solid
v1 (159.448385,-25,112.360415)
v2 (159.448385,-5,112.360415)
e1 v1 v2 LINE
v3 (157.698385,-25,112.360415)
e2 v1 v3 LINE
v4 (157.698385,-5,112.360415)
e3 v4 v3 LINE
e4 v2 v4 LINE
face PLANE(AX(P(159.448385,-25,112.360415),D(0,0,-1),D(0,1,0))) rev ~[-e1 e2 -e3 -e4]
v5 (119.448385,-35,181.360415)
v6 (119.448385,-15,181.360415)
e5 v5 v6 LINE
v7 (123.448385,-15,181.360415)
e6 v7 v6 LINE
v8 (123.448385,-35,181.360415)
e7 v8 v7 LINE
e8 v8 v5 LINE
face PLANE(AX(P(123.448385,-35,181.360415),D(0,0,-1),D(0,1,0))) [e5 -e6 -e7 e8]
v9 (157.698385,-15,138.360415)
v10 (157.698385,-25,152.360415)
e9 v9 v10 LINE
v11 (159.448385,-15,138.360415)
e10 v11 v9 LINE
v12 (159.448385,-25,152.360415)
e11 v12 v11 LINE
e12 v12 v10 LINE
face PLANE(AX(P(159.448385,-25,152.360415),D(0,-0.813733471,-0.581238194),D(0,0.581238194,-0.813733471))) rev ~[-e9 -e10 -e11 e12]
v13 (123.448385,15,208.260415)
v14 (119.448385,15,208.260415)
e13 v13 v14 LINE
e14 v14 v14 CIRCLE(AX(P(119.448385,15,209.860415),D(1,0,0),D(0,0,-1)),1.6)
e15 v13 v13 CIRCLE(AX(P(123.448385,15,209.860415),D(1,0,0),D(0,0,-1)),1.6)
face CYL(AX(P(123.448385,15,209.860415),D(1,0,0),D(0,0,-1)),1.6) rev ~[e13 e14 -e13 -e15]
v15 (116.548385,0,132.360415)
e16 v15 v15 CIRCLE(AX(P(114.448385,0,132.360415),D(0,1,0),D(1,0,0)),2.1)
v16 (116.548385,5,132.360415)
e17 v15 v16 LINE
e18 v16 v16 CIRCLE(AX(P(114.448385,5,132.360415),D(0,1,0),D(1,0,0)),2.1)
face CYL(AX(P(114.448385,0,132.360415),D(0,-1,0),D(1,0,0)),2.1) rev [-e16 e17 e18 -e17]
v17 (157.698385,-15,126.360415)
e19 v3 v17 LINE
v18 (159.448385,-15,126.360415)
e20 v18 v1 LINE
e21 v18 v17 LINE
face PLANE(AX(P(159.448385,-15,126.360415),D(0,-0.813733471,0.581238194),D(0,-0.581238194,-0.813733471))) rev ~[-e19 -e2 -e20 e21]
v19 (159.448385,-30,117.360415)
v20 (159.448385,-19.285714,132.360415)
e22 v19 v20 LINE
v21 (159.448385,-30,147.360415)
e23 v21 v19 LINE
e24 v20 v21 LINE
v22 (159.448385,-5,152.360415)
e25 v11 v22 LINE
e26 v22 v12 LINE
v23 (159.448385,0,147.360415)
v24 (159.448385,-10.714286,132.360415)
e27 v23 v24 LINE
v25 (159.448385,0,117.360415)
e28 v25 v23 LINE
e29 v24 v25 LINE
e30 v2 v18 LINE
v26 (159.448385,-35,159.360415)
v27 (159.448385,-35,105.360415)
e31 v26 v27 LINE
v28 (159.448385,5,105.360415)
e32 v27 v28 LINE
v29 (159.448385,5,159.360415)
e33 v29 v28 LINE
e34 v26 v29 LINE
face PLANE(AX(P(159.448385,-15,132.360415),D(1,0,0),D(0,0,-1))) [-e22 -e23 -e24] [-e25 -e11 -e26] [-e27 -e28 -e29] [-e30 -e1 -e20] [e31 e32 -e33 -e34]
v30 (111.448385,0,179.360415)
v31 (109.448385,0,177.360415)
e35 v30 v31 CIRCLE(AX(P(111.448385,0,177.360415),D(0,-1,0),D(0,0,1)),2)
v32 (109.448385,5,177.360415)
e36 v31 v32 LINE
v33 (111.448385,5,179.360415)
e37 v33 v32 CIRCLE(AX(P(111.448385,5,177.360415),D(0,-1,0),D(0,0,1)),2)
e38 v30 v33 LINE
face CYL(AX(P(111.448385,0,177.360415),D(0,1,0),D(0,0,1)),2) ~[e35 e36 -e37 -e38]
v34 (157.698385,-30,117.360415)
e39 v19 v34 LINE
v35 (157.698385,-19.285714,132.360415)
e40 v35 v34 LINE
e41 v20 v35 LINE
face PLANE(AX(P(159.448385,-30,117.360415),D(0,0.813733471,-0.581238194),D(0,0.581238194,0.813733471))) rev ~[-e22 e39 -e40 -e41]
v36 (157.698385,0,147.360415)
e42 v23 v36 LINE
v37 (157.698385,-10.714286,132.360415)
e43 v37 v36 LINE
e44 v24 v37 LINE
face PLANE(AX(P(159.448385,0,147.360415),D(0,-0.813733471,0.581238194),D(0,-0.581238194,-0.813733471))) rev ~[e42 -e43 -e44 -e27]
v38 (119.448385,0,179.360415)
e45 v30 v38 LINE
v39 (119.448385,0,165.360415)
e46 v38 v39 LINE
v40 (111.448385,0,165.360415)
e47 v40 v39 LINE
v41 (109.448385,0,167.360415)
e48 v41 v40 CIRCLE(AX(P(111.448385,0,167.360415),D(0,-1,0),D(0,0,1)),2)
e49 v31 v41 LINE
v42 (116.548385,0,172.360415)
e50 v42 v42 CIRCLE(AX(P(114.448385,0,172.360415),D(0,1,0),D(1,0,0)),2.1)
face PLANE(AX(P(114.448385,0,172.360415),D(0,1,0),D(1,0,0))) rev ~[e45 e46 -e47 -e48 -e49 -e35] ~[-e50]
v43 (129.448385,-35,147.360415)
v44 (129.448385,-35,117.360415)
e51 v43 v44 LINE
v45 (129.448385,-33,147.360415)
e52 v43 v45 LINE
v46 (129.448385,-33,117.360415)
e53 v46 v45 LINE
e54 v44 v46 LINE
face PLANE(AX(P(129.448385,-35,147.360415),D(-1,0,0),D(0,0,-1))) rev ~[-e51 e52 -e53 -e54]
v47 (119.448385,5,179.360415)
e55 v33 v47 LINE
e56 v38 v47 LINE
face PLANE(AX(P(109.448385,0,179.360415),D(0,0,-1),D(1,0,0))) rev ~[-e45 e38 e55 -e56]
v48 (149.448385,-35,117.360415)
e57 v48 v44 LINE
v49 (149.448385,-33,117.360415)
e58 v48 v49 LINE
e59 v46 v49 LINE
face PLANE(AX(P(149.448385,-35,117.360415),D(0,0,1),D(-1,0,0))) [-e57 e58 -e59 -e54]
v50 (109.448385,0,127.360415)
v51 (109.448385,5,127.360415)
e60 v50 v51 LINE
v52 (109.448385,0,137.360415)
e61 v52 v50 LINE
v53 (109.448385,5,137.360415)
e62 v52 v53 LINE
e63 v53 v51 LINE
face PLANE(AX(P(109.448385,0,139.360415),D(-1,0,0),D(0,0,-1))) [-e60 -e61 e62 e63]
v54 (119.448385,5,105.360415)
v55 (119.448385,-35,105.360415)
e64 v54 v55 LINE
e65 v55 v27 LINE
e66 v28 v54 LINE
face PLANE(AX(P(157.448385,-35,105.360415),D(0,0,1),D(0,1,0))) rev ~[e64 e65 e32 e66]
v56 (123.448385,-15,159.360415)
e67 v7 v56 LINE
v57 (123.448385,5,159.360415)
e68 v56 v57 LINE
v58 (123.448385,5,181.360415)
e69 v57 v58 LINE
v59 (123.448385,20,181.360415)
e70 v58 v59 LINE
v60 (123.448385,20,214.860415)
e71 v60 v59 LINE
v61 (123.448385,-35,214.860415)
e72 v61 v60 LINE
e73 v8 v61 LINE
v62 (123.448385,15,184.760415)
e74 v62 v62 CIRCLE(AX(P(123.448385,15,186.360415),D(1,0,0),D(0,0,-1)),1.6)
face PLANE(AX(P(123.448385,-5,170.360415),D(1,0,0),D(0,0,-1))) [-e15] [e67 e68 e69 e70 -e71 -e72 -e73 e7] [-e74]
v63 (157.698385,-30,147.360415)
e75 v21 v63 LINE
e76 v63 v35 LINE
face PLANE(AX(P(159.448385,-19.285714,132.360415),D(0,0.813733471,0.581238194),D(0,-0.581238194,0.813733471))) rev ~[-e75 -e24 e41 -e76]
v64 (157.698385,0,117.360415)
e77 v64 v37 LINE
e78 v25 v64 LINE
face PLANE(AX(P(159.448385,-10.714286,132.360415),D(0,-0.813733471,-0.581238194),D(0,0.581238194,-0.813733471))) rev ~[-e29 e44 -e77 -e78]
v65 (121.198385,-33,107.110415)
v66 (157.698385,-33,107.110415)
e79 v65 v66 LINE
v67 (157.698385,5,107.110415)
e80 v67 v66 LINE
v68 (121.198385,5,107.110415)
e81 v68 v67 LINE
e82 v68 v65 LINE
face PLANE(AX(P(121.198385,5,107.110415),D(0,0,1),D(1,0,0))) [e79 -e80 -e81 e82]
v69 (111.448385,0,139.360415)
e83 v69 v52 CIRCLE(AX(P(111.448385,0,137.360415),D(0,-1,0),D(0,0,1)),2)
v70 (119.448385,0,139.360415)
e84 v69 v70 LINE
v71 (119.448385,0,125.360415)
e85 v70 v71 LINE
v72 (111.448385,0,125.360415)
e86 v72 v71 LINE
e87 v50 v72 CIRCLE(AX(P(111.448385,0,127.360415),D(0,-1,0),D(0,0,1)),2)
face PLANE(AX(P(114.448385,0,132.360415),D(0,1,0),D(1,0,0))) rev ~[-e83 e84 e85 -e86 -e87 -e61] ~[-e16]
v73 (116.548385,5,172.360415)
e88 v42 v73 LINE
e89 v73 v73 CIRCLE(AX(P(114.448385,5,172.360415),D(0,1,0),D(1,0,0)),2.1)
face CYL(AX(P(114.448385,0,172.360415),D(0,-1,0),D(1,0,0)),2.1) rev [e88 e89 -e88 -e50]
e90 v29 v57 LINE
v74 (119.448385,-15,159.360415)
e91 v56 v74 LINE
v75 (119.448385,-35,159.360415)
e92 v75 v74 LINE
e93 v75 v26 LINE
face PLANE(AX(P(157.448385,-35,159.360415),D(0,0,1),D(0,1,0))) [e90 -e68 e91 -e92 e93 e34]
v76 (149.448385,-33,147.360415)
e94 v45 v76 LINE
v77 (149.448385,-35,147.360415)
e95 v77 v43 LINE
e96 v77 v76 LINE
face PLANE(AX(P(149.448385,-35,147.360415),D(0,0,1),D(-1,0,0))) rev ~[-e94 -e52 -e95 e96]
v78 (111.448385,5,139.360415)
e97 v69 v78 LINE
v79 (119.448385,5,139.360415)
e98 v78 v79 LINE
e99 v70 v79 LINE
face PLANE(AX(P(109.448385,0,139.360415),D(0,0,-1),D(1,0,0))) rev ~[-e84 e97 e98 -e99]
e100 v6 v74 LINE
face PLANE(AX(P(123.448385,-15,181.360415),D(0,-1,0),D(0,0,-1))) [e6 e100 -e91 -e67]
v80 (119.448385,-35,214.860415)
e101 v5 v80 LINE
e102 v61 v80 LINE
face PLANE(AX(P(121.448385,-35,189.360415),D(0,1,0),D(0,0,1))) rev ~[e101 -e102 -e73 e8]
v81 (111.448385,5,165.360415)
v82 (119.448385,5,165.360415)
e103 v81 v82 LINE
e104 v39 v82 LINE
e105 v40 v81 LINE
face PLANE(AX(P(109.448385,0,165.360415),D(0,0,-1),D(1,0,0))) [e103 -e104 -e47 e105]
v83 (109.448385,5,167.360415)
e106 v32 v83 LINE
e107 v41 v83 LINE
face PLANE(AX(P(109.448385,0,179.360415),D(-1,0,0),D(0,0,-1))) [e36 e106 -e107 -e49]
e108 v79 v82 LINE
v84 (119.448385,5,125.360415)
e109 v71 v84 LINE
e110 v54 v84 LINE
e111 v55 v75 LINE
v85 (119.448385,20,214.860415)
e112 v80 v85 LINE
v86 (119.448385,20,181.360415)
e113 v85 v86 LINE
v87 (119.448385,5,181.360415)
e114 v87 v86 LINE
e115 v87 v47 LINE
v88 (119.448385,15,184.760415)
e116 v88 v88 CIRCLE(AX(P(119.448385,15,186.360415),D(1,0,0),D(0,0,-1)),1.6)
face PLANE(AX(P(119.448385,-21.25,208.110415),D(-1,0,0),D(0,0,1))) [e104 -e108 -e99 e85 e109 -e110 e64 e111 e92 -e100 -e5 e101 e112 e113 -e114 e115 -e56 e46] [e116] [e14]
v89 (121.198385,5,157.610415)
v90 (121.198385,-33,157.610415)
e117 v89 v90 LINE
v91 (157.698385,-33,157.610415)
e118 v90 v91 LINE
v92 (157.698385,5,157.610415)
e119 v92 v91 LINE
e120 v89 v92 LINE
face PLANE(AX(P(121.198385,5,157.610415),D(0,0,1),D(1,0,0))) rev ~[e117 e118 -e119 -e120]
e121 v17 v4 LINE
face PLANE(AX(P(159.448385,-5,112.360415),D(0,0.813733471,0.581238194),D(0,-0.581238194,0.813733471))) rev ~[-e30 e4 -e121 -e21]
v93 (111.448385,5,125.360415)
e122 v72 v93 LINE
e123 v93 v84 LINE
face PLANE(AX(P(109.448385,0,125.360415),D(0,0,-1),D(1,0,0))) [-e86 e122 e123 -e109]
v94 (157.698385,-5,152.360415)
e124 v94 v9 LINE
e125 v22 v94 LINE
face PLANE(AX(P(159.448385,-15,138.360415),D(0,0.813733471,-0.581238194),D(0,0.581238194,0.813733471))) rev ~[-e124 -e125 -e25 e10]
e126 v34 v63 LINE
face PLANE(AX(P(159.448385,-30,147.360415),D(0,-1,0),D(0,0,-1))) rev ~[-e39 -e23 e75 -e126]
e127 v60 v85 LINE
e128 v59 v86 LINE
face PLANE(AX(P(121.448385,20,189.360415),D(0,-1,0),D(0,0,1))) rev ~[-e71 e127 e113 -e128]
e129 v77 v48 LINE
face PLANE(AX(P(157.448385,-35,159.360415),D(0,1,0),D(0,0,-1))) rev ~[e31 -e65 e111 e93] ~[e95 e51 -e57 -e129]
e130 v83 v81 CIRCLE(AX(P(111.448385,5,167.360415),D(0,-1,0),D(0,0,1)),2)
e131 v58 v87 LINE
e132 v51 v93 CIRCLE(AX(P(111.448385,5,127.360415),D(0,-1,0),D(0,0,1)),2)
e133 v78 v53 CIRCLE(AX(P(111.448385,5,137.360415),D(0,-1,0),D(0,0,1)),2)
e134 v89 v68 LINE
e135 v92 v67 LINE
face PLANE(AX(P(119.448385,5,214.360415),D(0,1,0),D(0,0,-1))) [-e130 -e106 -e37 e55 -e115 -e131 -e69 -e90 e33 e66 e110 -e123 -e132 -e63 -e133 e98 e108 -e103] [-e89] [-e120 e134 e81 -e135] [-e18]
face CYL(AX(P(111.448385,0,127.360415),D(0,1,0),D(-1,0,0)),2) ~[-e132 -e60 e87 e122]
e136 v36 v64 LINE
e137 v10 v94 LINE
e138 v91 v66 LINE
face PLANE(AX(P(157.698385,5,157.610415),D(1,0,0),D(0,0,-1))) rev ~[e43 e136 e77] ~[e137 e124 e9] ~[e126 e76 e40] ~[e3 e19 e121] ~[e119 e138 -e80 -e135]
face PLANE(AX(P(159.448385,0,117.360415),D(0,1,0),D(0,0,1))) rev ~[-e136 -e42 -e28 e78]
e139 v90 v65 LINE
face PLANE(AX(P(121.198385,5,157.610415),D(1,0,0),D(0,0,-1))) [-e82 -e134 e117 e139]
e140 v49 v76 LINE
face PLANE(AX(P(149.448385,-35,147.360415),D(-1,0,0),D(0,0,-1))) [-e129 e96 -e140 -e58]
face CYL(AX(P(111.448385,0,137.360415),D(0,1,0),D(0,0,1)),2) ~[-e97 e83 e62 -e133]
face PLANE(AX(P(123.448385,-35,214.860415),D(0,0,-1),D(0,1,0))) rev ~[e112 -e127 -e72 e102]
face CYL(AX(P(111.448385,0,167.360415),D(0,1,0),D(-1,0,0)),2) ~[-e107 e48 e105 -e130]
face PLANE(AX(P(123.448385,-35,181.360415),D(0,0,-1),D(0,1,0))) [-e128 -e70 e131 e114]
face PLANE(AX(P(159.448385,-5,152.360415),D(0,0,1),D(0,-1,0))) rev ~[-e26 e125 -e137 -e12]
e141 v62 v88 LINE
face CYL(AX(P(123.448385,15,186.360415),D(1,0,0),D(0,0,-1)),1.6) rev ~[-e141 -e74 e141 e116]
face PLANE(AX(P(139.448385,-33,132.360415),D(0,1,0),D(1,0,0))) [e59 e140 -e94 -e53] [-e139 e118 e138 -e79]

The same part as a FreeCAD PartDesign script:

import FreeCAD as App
import Part
import Sketcher


def edges_at(feature, points):
    """Names of the edges that pass closest to the given points."""
    edges = feature.Shape.Edges
    near = lambda p: min(range(len(edges)), key=lambda i: edges[i].distToShape(Part.Vertex(*p))[0])
    return sorted({f"Edge{near(p) + 1}" for p in points})


def add_polygon(sketch, points):
    """Adds a closed chain of lines whose ends are joined by coincident constraints."""
    first, n = sketch.GeometryCount, len(points)
    for a, b in zip(points, points[1:] + points[:1]):
        sketch.addGeometry(Part.LineSegment(App.Vector(*a, 0), App.Vector(*b, 0)), False)
    for i in range(n):
        sketch.addConstraint(Sketcher.Constraint("Coincident", first + i, 2, first + (i + 1) % n, 1))

doc = App.newDocument("Part")
body = doc.addObject("PartDesign::Body", "Body")

# Sketch on XZ plane
sketch1 = body.newObject("Sketcher::SketchObject", "Sketch")
sketch1.AttachmentSupport = (doc.getObject("XZ_Plane"), [""])
sketch1.MapMode = "FlatFace"
add_polygon(sketch1, [(109.448385, 125.360415), (109.448385, 139.360415), (119.448385, 139.360415), (119.448385, 125.360415)])  # lines 0-3
sketch1.addGeometry(Part.Circle(App.Vector(114.448385, 132.360415, 0), App.Vector(0, 0, 1), 2.1), False)  # 4
sketch1.addConstraint([
    Sketcher.Constraint("Vertical", 0),
    Sketcher.Constraint("Horizontal", 1),
    Sketcher.Constraint("Vertical", 2),
    Sketcher.Constraint("Horizontal", 3),
    Sketcher.Constraint("Diameter", 4, 4.2),
    Sketcher.Constraint("DistanceX", 1, 1, 1, 2, 10.0),
    Sketcher.Constraint("DistanceY", 0, 1, 0, 2, 14.0),
    Sketcher.Constraint("DistanceX", 0, 2, 4, 3, 5.0),
    Sketcher.Constraint("DistanceY", 4, 3, 0, 2, 7.0),
    Sketcher.Constraint("DistanceX", -1, 1, 4, 3, 114.448385),
    Sketcher.Constraint("DistanceY", -1, 1, 4, 3, 132.360415),
])
pad1 = body.newObject("PartDesign::Pad", "Pad")
pad1.Profile = sketch1
pad1.Length = 5
pad1.Reversed = True
body2 = doc.addObject("PartDesign::Body", "Body001")

# Sketch on XZ plane
sketch2 = body2.newObject("Sketcher::SketchObject", "Sketch001")
sketch2.AttachmentSupport = (doc.getObject("XZ_Plane001"), [""])
sketch2.MapMode = "FlatFace"
add_polygon(sketch2, [(109.448385, 165.360415), (109.448385, 179.360415), (119.448385, 179.360415), (119.448385, 165.360415)])  # lines 0-3
sketch2.addGeometry(Part.Circle(App.Vector(114.448385, 172.360415, 0), App.Vector(0, 0, 1), 2.1), False)  # 4
sketch2.addConstraint([
    Sketcher.Constraint("Vertical", 0),
    Sketcher.Constraint("Horizontal", 1),
    Sketcher.Constraint("Vertical", 2),
    Sketcher.Constraint("Horizontal", 3),
    Sketcher.Constraint("Diameter", 4, 4.2),
    Sketcher.Constraint("DistanceX", 1, 1, 1, 2, 10.0),
    Sketcher.Constraint("DistanceY", 0, 1, 0, 2, 14.0),
    Sketcher.Constraint("DistanceX", 0, 2, 4, 3, 5.0),
    Sketcher.Constraint("DistanceY", 4, 3, 0, 2, 7.0),
    Sketcher.Constraint("DistanceX", -1, 1, 4, 3, 114.448385),
    Sketcher.Constraint("DistanceY", -1, 1, 4, 3, 172.360415),
])
pad2 = body2.newObject("PartDesign::Pad", "Pad001")
pad2.Profile = sketch2
pad2.Length = 5
pad2.Reversed = True
body.AllowCompound = True
doc.recompute()

boolean = body.newObject("PartDesign::Boolean", "Boolean")
boolean.Type = "Fuse"
boolean.addObjects([body2])

# Sketch on YZ plane
sketch3 = body.newObject("Sketcher::SketchObject", "Sketch002")
sketch3.AttachmentSupport = (doc.getObject("YZ_Plane"), [""])
sketch3.MapMode = "FlatFace"
sketch3.AttachmentOffset = App.Placement(App.Vector(0, 0, 119.448385), App.Rotation())
add_polygon(sketch3, [(5, 196.860415), (-34, 196.860415), (-34, 107.860415), (5, 107.860415)])  # lines 0-3
sketch3.addConstraint([
    Sketcher.Constraint("Horizontal", 0),
    Sketcher.Constraint("Vertical", 1),
    Sketcher.Constraint("Horizontal", 2),
    Sketcher.Constraint("Vertical", 3),
    Sketcher.Constraint("DistanceX", 0, 2, 0, 1, 39.0),
    Sketcher.Constraint("DistanceY", 1, 2, 1, 1, 89.0),
    Sketcher.Constraint("DistanceX", 0, 2, -1, 1, 34.0),
    Sketcher.Constraint("DistanceY", -1, 1, 0, 2, 196.860415),
])
pad3 = body.newObject("PartDesign::Pad", "Pad002")
pad3.Profile = sketch3
pad3.Length = 2

# Sketch on YZ plane
sketch4 = body.newObject("Sketcher::SketchObject", "Sketch003")
sketch4.AttachmentSupport = (doc.getObject("YZ_Plane"), [""])
sketch4.MapMode = "FlatFace"
sketch4.AttachmentOffset = App.Placement(App.Vector(0, 0, 121.448385), App.Rotation())
add_polygon(sketch4, [(5, 194.860415), (5, 196.860415), (-34, 196.860415), (-34, 107.860415), (5, 107.860415), (5, 109.860415), (-32, 109.860415), (-32, 194.860415)])  # lines 0-7
sketch4.addConstraint([
    Sketcher.Constraint("Vertical", 0),
    Sketcher.Constraint("Horizontal", 1),
    Sketcher.Constraint("Vertical", 2),
    Sketcher.Constraint("Horizontal", 3),
    Sketcher.Constraint("Vertical", 4),
    Sketcher.Constraint("Horizontal", 5),
    Sketcher.Constraint("Vertical", 6),
    Sketcher.Constraint("Horizontal", 7),
    Sketcher.Constraint("Vertical", 0, 2, 3, 2),
    Sketcher.Constraint("Equal", 0, 4),
    Sketcher.Constraint("DistanceX", 1, 2, 1, 1, 39.0),
    Sketcher.Constraint("DistanceX", 5, 2, 5, 1, 37.0),
    Sketcher.Constraint("DistanceY", 0, 1, 0, 2, 2.0),
    Sketcher.Constraint("DistanceY", 2, 2, 2, 1, 89.0),
    Sketcher.Constraint("DistanceX", -1, 1, 0, 2, 5.0),
    Sketcher.Constraint("DistanceY", -1, 1, 0, 2, 196.860415),
])
pad4 = body.newObject("PartDesign::Pad", "Pad003")
pad4.Profile = sketch4
pad4.Length = 32

# Sketch on XZ plane
sketch5 = body.newObject("Sketcher::SketchObject", "Sketch004")
sketch5.AttachmentSupport = (doc.getObject("XZ_Plane"), [""])
sketch5.MapMode = "FlatFace"
sketch5.AttachmentOffset = App.Placement(App.Vector(0, 0, 32), App.Rotation())
add_polygon(sketch5, [(151.448385, 109.860415), (151.448385, 194.860415), (153.448385, 194.860415), (153.448385, 109.860415)])  # lines 0-3
sketch5.addConstraint([
    Sketcher.Constraint("Vertical", 0),
    Sketcher.Constraint("Horizontal", 1),
    Sketcher.Constraint("Vertical", 2),
    Sketcher.Constraint("Horizontal", 3),
    Sketcher.Constraint("DistanceX", 1, 1, 1, 2, 2.0),
    Sketcher.Constraint("DistanceY", 0, 1, 0, 2, 85.0),
    Sketcher.Constraint("DistanceX", -1, 1, 0, 2, 151.448385),
    Sketcher.Constraint("DistanceY", -1, 1, 0, 2, 194.860415),
])
pad5 = body.newObject("PartDesign::Pad", "Pad004")
pad5.Profile = sketch5
pad5.Length = 37
pad5.Reversed = True

# Sketch on XY plane
sketch6 = body.newObject("Sketcher::SketchObject", "Sketch005")
sketch6.AttachmentSupport = (doc.getObject("XY_Plane"), [""])
sketch6.MapMode = "FlatFace"
sketch6.AttachmentOffset = App.Placement(App.Vector(0, 0, 196.860415), App.Rotation())
add_polygon(sketch6, [(129.448385, 5), (129.448385, -25), (143.448385, -25), (143.448385, 5)])  # lines 0-3
sketch6.addConstraint([
    Sketcher.Constraint("Vertical", 0),
    Sketcher.Constraint("Horizontal", 1),
    Sketcher.Constraint("Vertical", 2),
    Sketcher.Constraint("Horizontal", 3),
    Sketcher.Constraint("DistanceX", 1, 1, 1, 2, 14.0),
    Sketcher.Constraint("DistanceY", 0, 2, 0, 1, 30.0),
    Sketcher.Constraint("DistanceY", 0, 2, -1, 1, 25.0),
    Sketcher.Constraint("DistanceX", -1, 1, 0, 2, 129.448385),
])
pocket1 = body.newObject("PartDesign::Pocket", "Pocket")
pocket1.Profile = sketch6
pocket1.Length = 200

# Sketch on YZ plane
sketch7 = body.newObject("Sketcher::SketchObject", "Sketch006")
sketch7.AttachmentSupport = (doc.getObject("YZ_Plane"), [""])
sketch7.MapMode = "FlatFace"
sketch7.AttachmentOffset = App.Placement(App.Vector(0, 0, 153.448385), App.Rotation())
add_polygon(sketch7, [(-4.5, 189.360415), (-24.5, 189.360415), (-24.5, 169.360415), (-4.5, 169.360415)])  # lines 0-3
add_polygon(sketch7, [(-4.5, 162.360415), (-24.5, 162.360415), (-24.5, 142.360415), (-4.5, 142.360415)])  # lines 4-7
add_polygon(sketch7, [(-4.5, 135.360415), (-24.5, 135.360415), (-24.5, 115.360415), (-4.5, 115.360415)])  # lines 8-11
sketch7.addConstraint([
    Sketcher.Constraint("Horizontal", 0),
    Sketcher.Constraint("Vertical", 1),
    Sketcher.Constraint("Horizontal", 2),
    Sketcher.Constraint("Vertical", 3),
    Sketcher.Constraint("Horizontal", 4),
    Sketcher.Constraint("Vertical", 5),
    Sketcher.Constraint("Horizontal", 6),
    Sketcher.Constraint("Vertical", 7),
    Sketcher.Constraint("Horizontal", 8),
    Sketcher.Constraint("Vertical", 9),
    Sketcher.Constraint("Horizontal", 10),
    Sketcher.Constraint("Vertical", 11),
    Sketcher.Constraint("Vertical", 1, 2, 4, 2),
    Sketcher.Constraint("Vertical", 3, 2, 6, 2),
    Sketcher.Constraint("Vertical", 5, 2, 8, 2),
    Sketcher.Constraint("Vertical", 7, 2, 10, 2),
    Sketcher.Constraint("Equal", 10, 1),
    Sketcher.Constraint("Equal", 3, 5),
    Sketcher.Constraint("Equal", 7, 9),
    Sketcher.Constraint("DistanceX", 0, 2, 0, 1, 20.0),
    Sketcher.Constraint("DistanceY", 4, 2, 1, 2, 7.0),
    Sketcher.Constraint("DistanceY", 8, 2, 5, 2, 7.0),
    Sketcher.Constraint("DistanceX", 0, 2, -1, 1, 24.5),
    Sketcher.Constraint("DistanceY", -1, 1, 0, 2, 189.360415),
])
pocket2 = body.newObject("PartDesign::Pocket", "Pocket001")
pocket2.Profile = sketch7
pocket2.Length = 16
doc.recompute()

fillet = body.newObject("PartDesign::Fillet", "Fillet")
fillet.Base = (pocket2, edges_at(pocket2, [
    (109.448, 2.5, 139.36),
    (109.448, 2.5, 125.36),
    (109.448, 2.5, 179.36),
    (109.448, 2.5, 165.36),
]))
fillet.Radius = 2

# Sketch on YZ plane
sketch8 = body.newObject("Sketcher::SketchObject", "Sketch007")
sketch8.AttachmentSupport = (doc.getObject("YZ_Plane"), [""])
sketch8.MapMode = "FlatFace"
sketch8.AttachmentOffset = App.Placement(App.Vector(0, 0, 153.448385), App.Rotation())
add_polygon(sketch8, [(8.239038, 200.718865), (-38.424374, 200.718865), (-38.424374, 104.799629), (8.239038, 104.799629)])  # lines 0-3
sketch8.addConstraint([
    Sketcher.Constraint("Horizontal", 0),
    Sketcher.Constraint("Vertical", 1),
    Sketcher.Constraint("Horizontal", 2),
    Sketcher.Constraint("Vertical", 3),
    Sketcher.Constraint("DistanceX", 0, 2, 0, 1, 46.663412),
    Sketcher.Constraint("DistanceY", 1, 2, 1, 1, 95.919236),
    Sketcher.Constraint("DistanceY", -1, 1, 1, 2, 104.799629),
    Sketcher.Constraint("DistanceX", 0, 2, -1, 1, 38.424374),
])
pocket3 = body.newObject("PartDesign::Pocket", "Pocket002")
pocket3.Profile = sketch8
pocket3.Length = 34

# Sketch on YZ plane
sketch9 = body.newObject("Sketcher::SketchObject", "Sketch008")
sketch9.AttachmentSupport = (doc.getObject("YZ_Plane"), [""])
sketch9.MapMode = "FlatFace"
sketch9.AttachmentOffset = App.Placement(App.Vector(0, 0, 119.448385), App.Rotation())
add_polygon(sketch9, [(-35, 107.360415), (5, 107.360415), (5, 157.360415), (-35, 157.360415)])  # lines 0-3
sketch9.addConstraint([
    Sketcher.Constraint("Horizontal", 0),
    Sketcher.Constraint("Vertical", 1),
    Sketcher.Constraint("Horizontal", 2),
    Sketcher.Constraint("Vertical", 3),
    Sketcher.Constraint("DistanceX", 0, 1, 0, 2, 40.0),
    Sketcher.Constraint("DistanceY", 1, 1, 1, 2, 50.0),
    Sketcher.Constraint("DistanceX", -1, 1, 0, 2, 5.0),
    Sketcher.Constraint("DistanceY", -1, 1, 0, 2, 107.360415),
])
pad6 = body.newObject("PartDesign::Pad", "Pad005")
pad6.Profile = sketch9
pad6.Length = 2

# Sketch on YZ plane
sketch10 = body.newObject("Sketcher::SketchObject", "Sketch009")
sketch10.AttachmentSupport = (doc.getObject("YZ_Plane"), [""])
sketch10.MapMode = "FlatFace"
sketch10.AttachmentOffset = App.Placement(App.Vector(0, 0, 121.448385), App.Rotation())
add_polygon(sketch10, [(-33, 157.360415), (-35, 157.360415), (-35, 107.360415), (-33, 107.360415)])  # lines 0-3
sketch10.addConstraint([
    Sketcher.Constraint("Horizontal", 0),
    Sketcher.Constraint("Vertical", 1),
    Sketcher.Constraint("Horizontal", 2),
    Sketcher.Constraint("Vertical", 3),
    Sketcher.Constraint("DistanceX", 0, 2, 0, 1, 2.0),
    Sketcher.Constraint("DistanceY", 1, 2, 1, 1, 50.0),
    Sketcher.Constraint("DistanceX", 0, 2, -1, 1, 35.0),
    Sketcher.Constraint("DistanceY", -1, 1, 0, 2, 157.360415),
])
pocket4 = body.newObject("PartDesign::Pocket", "Pocket003")
pocket4.Profile = sketch10
pocket4.Length = 36
body3 = doc.addObject("PartDesign::Body", "Body002")

# Sketch on YZ plane
sketch11 = body3.newObject("Sketcher::SketchObject", "Sketch010")
sketch11.AttachmentSupport = (doc.getObject("YZ_Plane002"), [""])
sketch11.MapMode = "FlatFace"
sketch11.AttachmentOffset = App.Placement(App.Vector(0, 0, 121.448385), App.Rotation())
add_polygon(sketch11, [(5, 157.360415), (5, 159.360415), (-35, 159.360415), (-35, 157.360415)])  # lines 0-3
sketch11.addConstraint([
    Sketcher.Constraint("Vertical", 0),
    Sketcher.Constraint("Horizontal", 1),
    Sketcher.Constraint("Vertical", 2),
    Sketcher.Constraint("Horizontal", 3),
    Sketcher.Constraint("DistanceX", 1, 2, 1, 1, 40.0),
    Sketcher.Constraint("DistanceY", 0, 1, 0, 2, 2.0),
    Sketcher.Constraint("DistanceX", -1, 1, 0, 2, 5.0),
    Sketcher.Constraint("DistanceY", -1, 1, 0, 2, 159.360415),
])
pad7 = body3.newObject("PartDesign::Pad", "Pad006")
pad7.Profile = sketch11
pad7.Length = 36
body4 = doc.addObject("PartDesign::Body", "Body003")

# Sketch on YZ plane
sketch12 = body4.newObject("Sketcher::SketchObject", "Sketch011")
sketch12.AttachmentSupport = (doc.getObject("YZ_Plane003"), [""])
sketch12.MapMode = "FlatFace"
sketch12.AttachmentOffset = App.Placement(App.Vector(0, 0, 121.448385), App.Rotation())
add_polygon(sketch12, [(5, 107.360415), (-35, 107.360415), (-35, 105.360415), (5, 105.360415)])  # lines 0-3
sketch12.addConstraint([
    Sketcher.Constraint("Horizontal", 0),
    Sketcher.Constraint("Vertical", 1),
    Sketcher.Constraint("Horizontal", 2),
    Sketcher.Constraint("Vertical", 3),
    Sketcher.Constraint("DistanceX", 0, 2, 0, 1, 40.0),
    Sketcher.Constraint("DistanceY", 1, 2, 1, 1, 2.0),
    Sketcher.Constraint("DistanceX", 0, 2, -1, 1, 35.0),
    Sketcher.Constraint("DistanceY", -1, 1, 0, 2, 107.360415),
])
pad8 = body4.newObject("PartDesign::Pad", "Pad007")
pad8.Profile = sketch12
pad8.Length = 36
body3.AllowCompound = True
doc.recompute()

boolean2 = body3.newObject("PartDesign::Boolean", "Boolean001")
boolean2.Type = "Fuse"
boolean2.addObjects([body4])

# Sketch on YZ plane
sketch13 = body3.newObject("Sketcher::SketchObject", "Sketch012")
sketch13.AttachmentSupport = (doc.getObject("YZ_Plane002"), [""])
sketch13.MapMode = "FlatFace"
sketch13.AttachmentOffset = App.Placement(App.Vector(0, 0, 121.448385), App.Rotation())
add_polygon(sketch13, [(-33, 157.360415), (-35, 157.360415), (-35, 107.360415), (-33, 107.360415)])  # lines 0-3
sketch13.addConstraint([
    Sketcher.Constraint("Horizontal", 0),
    Sketcher.Constraint("Vertical", 1),
    Sketcher.Constraint("Horizontal", 2),
    Sketcher.Constraint("Vertical", 3),
    Sketcher.Constraint("DistanceX", 0, 2, 0, 1, 2.0),
    Sketcher.Constraint("DistanceY", 1, 2, 1, 1, 50.0),
    Sketcher.Constraint("DistanceX", 0, 2, -1, 1, 35.0),
    Sketcher.Constraint("DistanceY", -1, 1, 0, 2, 157.360415),
])
pad9 = body3.newObject("PartDesign::Pad", "Pad008")
pad9.Profile = sketch13
pad9.Length = 36
body.AllowCompound = True
doc.recompute()

boolean3 = body.newObject("PartDesign::Boolean", "Boolean002")
boolean3.Type = "Fuse"
boolean3.addObjects([body3])

# Sketch on YZ plane
sketch14 = body.newObject("Sketcher::SketchObject", "Sketch013")
sketch14.AttachmentSupport = (doc.getObject("YZ_Plane"), [""])
sketch14.MapMode = "FlatFace"
sketch14.AttachmentOffset = App.Placement(App.Vector(0, 0, 121.448385), App.Rotation())
add_polygon(sketch14, [(5, 107.360415), (5, 105.360415), (-35, 105.360415), (-35, 159.360415), (5, 159.360415), (5, 157.360415), (-33, 157.360415), (-33, 107.360415)])  # lines 0-7
sketch14.addConstraint([
    Sketcher.Constraint("Vertical", 0),
    Sketcher.Constraint("Horizontal", 1),
    Sketcher.Constraint("Vertical", 2),
    Sketcher.Constraint("Horizontal", 3),
    Sketcher.Constraint("Vertical", 4),
    Sketcher.Constraint("Horizontal", 5),
    Sketcher.Constraint("Vertical", 6),
    Sketcher.Constraint("Horizontal", 7),
    Sketcher.Constraint("Vertical", 0, 2, 3, 2),
    Sketcher.Constraint("Equal", 0, 4),
    Sketcher.Constraint("DistanceX", 1, 2, 1, 1, 40.0),
    Sketcher.Constraint("DistanceX", 5, 2, 5, 1, 38.0),
    Sketcher.Constraint("DistanceY", 0, 2, 0, 1, 2.0),
    Sketcher.Constraint("DistanceY", 2, 1, 2, 2, 54.0),
    Sketcher.Constraint("DistanceX", -1, 1, 0, 2, 5.0),
    Sketcher.Constraint("DistanceY", -1, 1, 0, 2, 105.360415),
])
pad10 = body.newObject("PartDesign::Pad", "Pad009")
pad10.Profile = sketch14
pad10.Length = 2
pad10.Reversed = True

# Sketch on YZ plane
sketch15 = body.newObject("Sketcher::SketchObject", "Sketch014")
sketch15.AttachmentSupport = (doc.getObject("YZ_Plane"), [""])
sketch15.MapMode = "FlatFace"
sketch15.AttachmentOffset = App.Placement(App.Vector(0, 0, 157.448385), App.Rotation())
add_polygon(sketch15, [(5, 159.360415), (-35, 159.360415), (-35, 105.360415), (5, 105.360415)])  # lines 0-3
sketch15.addConstraint([
    Sketcher.Constraint("Horizontal", 0),
    Sketcher.Constraint("Vertical", 1),
    Sketcher.Constraint("Horizontal", 2),
    Sketcher.Constraint("Vertical", 3),
    Sketcher.Constraint("DistanceX", 0, 2, 0, 1, 40.0),
    Sketcher.Constraint("DistanceY", 1, 2, 1, 1, 54.0),
    Sketcher.Constraint("DistanceX", 0, 2, -1, 1, 35.0),
    Sketcher.Constraint("DistanceY", -1, 1, 0, 2, 159.360415),
])
pad11 = body.newObject("PartDesign::Pad", "Pad010")
pad11.Profile = sketch15
pad11.Length = 2

# Sketch on YZ plane
sketch16 = body.newObject("Sketcher::SketchObject", "Sketch015")
sketch16.AttachmentSupport = (doc.getObject("YZ_Plane"), [""])
sketch16.MapMode = "FlatFace"
sketch16.AttachmentOffset = App.Placement(App.Vector(0, 0, 159.448385), App.Rotation())
add_polygon(sketch16, [(-15, 138.360415), (-5, 152.360415), (-25, 152.360415)])  # lines 0-2
add_polygon(sketch16, [(0, 147.360415), (-10.714286, 132.360415), (0, 117.360415)])  # lines 3-5
add_polygon(sketch16, [(-5, 112.360415), (-15, 126.360415), (-25, 112.360415)])  # lines 6-8
add_polygon(sketch16, [(-30, 117.360415), (-19.285714, 132.360415), (-30, 147.360415)])  # lines 9-11
sketch16.addConstraint([
    Sketcher.Constraint("Horizontal", 1),
    Sketcher.Constraint("Vertical", 5),
    Sketcher.Constraint("Horizontal", 8),
    Sketcher.Constraint("Vertical", 11),
    Sketcher.Constraint("PointOnObject", 4, 2, -2),
    Sketcher.Constraint("Parallel", 0, 3),
    Sketcher.Constraint("Parallel", 2, 4),
    Sketcher.Constraint("Parallel", 4, 6),
    Sketcher.Constraint("Parallel", 3, 7),
    Sketcher.Constraint("Parallel", 7, 9),
    Sketcher.Constraint("Parallel", 6, 10),
    Sketcher.Constraint("Horizontal", 3, 2, 9, 2),
    Sketcher.Constraint("Horizontal", 5, 2, 10, 2),
    Sketcher.Constraint("Horizontal", 4, 2, 11, 2),
    Sketcher.Constraint("Vertical", 2, 2, 6, 2),
    Sketcher.Constraint("Vertical", 1, 2, 7, 2),
    Sketcher.Constraint("DistanceX", 1, 2, 1, 1, 20.0),
    Sketcher.Constraint("DistanceY", 5, 1, 5, 2, 30.0),
    Sketcher.Constraint("DistanceX", 0, 2, -1, 1, 5.0),
    Sketcher.Constraint("DistanceX", 10, 2, -1, 1, 30.0),
    Sketcher.Constraint("DistanceY", 2, 2, 0, 2, 14.0),
    Sketcher.Constraint("DistanceY", 3, 2, 2, 2, 6.0),
    Sketcher.Constraint("DistanceY", 6, 2, 3, 2, 6.0),
    Sketcher.Constraint("DistanceY", -1, 1, 0, 2, 152.360415),
])
pocket5 = body.newObject("PartDesign::Pocket", "Pocket004")
pocket5.Profile = sketch16
pocket5.Length = 2

# Sketch on YZ plane
sketch17 = body.newObject("Sketcher::SketchObject", "Sketch016")
sketch17.AttachmentSupport = (doc.getObject("YZ_Plane"), [""])
sketch17.MapMode = "FlatFace"
sketch17.AttachmentOffset = App.Placement(App.Vector(0, 0, 119.448385), App.Rotation())
add_polygon(sketch17, [(5, 214.360415), (-32, 214.360415), (-32, 159.360415), (5, 159.360415)])  # lines 0-3
sketch17.addConstraint([
    Sketcher.Constraint("Horizontal", 0),
    Sketcher.Constraint("Vertical", 1),
    Sketcher.Constraint("Horizontal", 2),
    Sketcher.Constraint("Vertical", 3),
    Sketcher.Constraint("DistanceX", 0, 2, 0, 1, 37.0),
    Sketcher.Constraint("DistanceY", 1, 2, 1, 1, 55.0),
    Sketcher.Constraint("DistanceX", 0, 2, -1, 1, 32.0),
    Sketcher.Constraint("DistanceY", -1, 1, 0, 2, 214.360415),
])
pad12 = body.newObject("PartDesign::Pad", "Pad011")
pad12.Profile = sketch17
pad12.Length = 4

# Sketch on YZ plane
sketch18 = body.newObject("Sketcher::SketchObject", "Sketch017")
sketch18.AttachmentSupport = (doc.getObject("YZ_Plane"), [""])
sketch18.MapMode = "FlatFace"
sketch18.AttachmentOffset = App.Placement(App.Vector(0, 0, 123.448385), App.Rotation())
sketch18.addGeometry([
    Part.Circle(App.Vector(-1.75, 209.360415, 0), App.Vector(0, 0, 1), 1.6),
    Part.Circle(App.Vector(-25.25, 209.360415, 0), App.Vector(0, 0, 1), 1.6),
    Part.Circle(App.Vector(-25.25, 164.360415, 0), App.Vector(0, 0, 1), 1.6),
    Part.Circle(App.Vector(-1.75, 164.360415, 0), App.Vector(0, 0, 1), 1.6),
], False)
sketch18.addConstraint([
    Sketcher.Constraint("Equal", 0, 1),
    Sketcher.Constraint("Equal", 1, 2),
    Sketcher.Constraint("Equal", 2, 3),
    Sketcher.Constraint("Horizontal", 0, 3, 1, 3),
    Sketcher.Constraint("Horizontal", 2, 3, 3, 3),
    Sketcher.Constraint("Vertical", 1, 3, 2, 3),
    Sketcher.Constraint("Vertical", 0, 3, 3, 3),
    Sketcher.Constraint("Diameter", 0, 3.2),
    Sketcher.Constraint("DistanceY", 2, 3, 1, 3, 45.0),
    Sketcher.Constraint("DistanceX", 1, 3, 0, 3, 23.5),
    Sketcher.Constraint("DistanceX", 0, 3, -1, 1, 1.75),
    Sketcher.Constraint("DistanceY", -1, 1, 0, 3, 209.360415),
])
pocket6 = body.newObject("PartDesign::Pocket", "Pocket005")
pocket6.Profile = sketch18
pocket6.Length = 11

# Sketch on YZ plane
sketch19 = body.newObject("Sketcher::SketchObject", "Sketch018")
sketch19.AttachmentSupport = (doc.getObject("YZ_Plane"), [""])
sketch19.MapMode = "FlatFace"
sketch19.AttachmentOffset = App.Placement(App.Vector(0, 0, 119.448385), App.Rotation())
sketch19.addGeometry(Part.Circle(App.Vector(-1.75, 164.360415, 0), App.Vector(0, 0, 1), 1.6), False)
sketch19.addConstraint([
    Sketcher.Constraint("Diameter", 0, 3.2),
    Sketcher.Constraint("DistanceX", 0, 3, -1, 1, 1.75),
    Sketcher.Constraint("DistanceY", -1, 1, 0, 3, 164.360415),
])
pad13 = body.newObject("PartDesign::Pad", "Pad012")
pad13.Profile = sketch19
pad13.Length = 4

# Sketch on YZ plane
sketch20 = body.newObject("Sketcher::SketchObject", "Sketch019")
sketch20.AttachmentSupport = (doc.getObject("YZ_Plane"), [""])
sketch20.MapMode = "FlatFace"
sketch20.AttachmentOffset = App.Placement(App.Vector(0, 0, 119.448385), App.Rotation())
sketch20.addGeometry([
    Part.Circle(App.Vector(-1.75, 209.360415, 0), App.Vector(0, 0, 1), 3.6),
    Part.Circle(App.Vector(-25.25, 209.360415, 0), App.Vector(0, 0, 1), 3.6),
    Part.Circle(App.Vector(-25.25, 164.360415, 0), App.Vector(0, 0, 1), 3.6),
], False)
sketch20.addConstraint([
    Sketcher.Constraint("Equal", 0, 1),
    Sketcher.Constraint("Equal", 1, 2),
    Sketcher.Constraint("Horizontal", 0, 3, 1, 3),
    Sketcher.Constraint("Vertical", 1, 3, 2, 3),
    Sketcher.Constraint("Diameter", 0, 7.2),
    Sketcher.Constraint("DistanceY", 2, 3, 1, 3, 45.0),
    Sketcher.Constraint("DistanceX", 1, 3, 0, 3, 23.5),
    Sketcher.Constraint("DistanceX", 0, 3, -1, 1, 1.75),
    Sketcher.Constraint("DistanceY", -1, 1, 0, 3, 209.360415),
])
pocket7 = body.newObject("PartDesign::Pocket", "Pocket006")
pocket7.Profile = sketch20
pocket7.Length = 2.2
pocket7.Reversed = True

# Sketch on YZ plane
sketch21 = body.newObject("Sketcher::SketchObject", "Sketch020")
sketch21.AttachmentSupport = (doc.getObject("YZ_Plane"), [""])
sketch21.MapMode = "FlatFace"
sketch21.AttachmentOffset = App.Placement(App.Vector(0, 0, 123.448385), App.Rotation())
add_polygon(sketch21, [(7.408005, 216.2773), (-32, 216.2773), (-32, 159.360415), (7.408005, 159.360415)])  # lines 0-3
sketch21.addConstraint([
    Sketcher.Constraint("Horizontal", 0),
    Sketcher.Constraint("Vertical", 1),
    Sketcher.Constraint("Horizontal", 2),
    Sketcher.Constraint("Vertical", 3),
    Sketcher.Constraint("DistanceX", 0, 2, -1, 1, 32.0),
    Sketcher.Constraint("DistanceY", -1, 1, 0, 2, 216.2773),
    Sketcher.Constraint("DistanceX", 0, 2, 0, 1, 39.408005),
    Sketcher.Constraint("DistanceY", 1, 2, 1, 1, 56.916885),
])
pocket8 = body.newObject("PartDesign::Pocket", "Pocket007")
pocket8.Profile = sketch21
pocket8.Length = 4
body5 = doc.addObject("PartDesign::Body", "Body004")

# Sketch on YZ plane
sketch22 = body5.newObject("Sketcher::SketchObject", "Sketch021")
sketch22.AttachmentSupport = (doc.getObject("YZ_Plane004"), [""])
sketch22.MapMode = "FlatFace"
sketch22.AttachmentOffset = App.Placement(App.Vector(0, 0, 119.448385), App.Rotation())
add_polygon(sketch22, [(20, 226.860415), (-7.5, 226.860415), (-7.5, 189.360415), (20, 189.360415)])  # lines 0-3
sketch22.addGeometry(Part.Circle(App.Vector(15, 219.860415, 0), App.Vector(0, 0, 1), 1.6), False)  # 4
sketch22.addGeometry(Part.Circle(App.Vector(15, 196.360415, 0), App.Vector(0, 0, 1), 1.6), False)  # 5
sketch22.addConstraint([
    Sketcher.Constraint("Horizontal", 0),
    Sketcher.Constraint("Vertical", 1),
    Sketcher.Constraint("Horizontal", 2),
    Sketcher.Constraint("Vertical", 3),
    Sketcher.Constraint("Equal", 4, 5),
    Sketcher.Constraint("Vertical", 4, 3, 5, 3),
    Sketcher.Constraint("Diameter", 4, 3.2),
    Sketcher.Constraint("DistanceX", 0, 2, 0, 1, 27.5),
    Sketcher.Constraint("DistanceY", 1, 2, 1, 1, 37.5),
    Sketcher.Constraint("DistanceX", -1, 1, 4, 3, 15.0),
    Sketcher.Constraint("DistanceX", -1, 1, 2, 2, 20.0),
    Sketcher.Constraint("DistanceY", 4, 3, 0, 2, 7.0),
    Sketcher.Constraint("DistanceY", 1, 2, 5, 3, 7.0),
    Sketcher.Constraint("DistanceY", -1, 1, 4, 3, 219.860415),
])
pad14 = body5.newObject("PartDesign::Pad", "Pad013")
pad14.Profile = sketch22
pad14.Length = 2
body.AllowCompound = True
doc.recompute()

boolean4 = body.newObject("PartDesign::Boolean", "Boolean003")
boolean4.Type = "Fuse"
boolean4.addObjects([body5])

# Sketch on YZ plane
sketch23 = body.newObject("Sketcher::SketchObject", "Sketch022")
sketch23.AttachmentSupport = (doc.getObject("YZ_Plane"), [""])
sketch23.MapMode = "FlatFace"
sketch23.AttachmentOffset = App.Placement(App.Vector(0, 0, 119.448385), App.Rotation())
add_polygon(sketch23, [(5, 189.360415), (-7.5, 189.360415), (-7.5, 159.360415), (5, 159.360415)])  # lines 0-3
sketch23.addConstraint([
    Sketcher.Constraint("Horizontal", 0),
    Sketcher.Constraint("Vertical", 1),
    Sketcher.Constraint("Horizontal", 2),
    Sketcher.Constraint("Vertical", 3),
    Sketcher.Constraint("DistanceY", 1, 2, 1, 1, 30.0),
    Sketcher.Constraint("DistanceX", 0, 2, 0, 1, 12.5),
    Sketcher.Constraint("DistanceX", -1, 1, 2, 2, 5.0),
    Sketcher.Constraint("DistanceY", -1, 1, 0, 2, 189.360415),
])
pad15 = body.newObject("PartDesign::Pad", "Pad014")
pad15.Profile = sketch23
pad15.Length = 2

# Sketch on XZ plane
sketch24 = body.newObject("Sketcher::SketchObject", "Sketch023")
sketch24.AttachmentSupport = (doc.getObject("XZ_Plane"), [""])
sketch24.MapMode = "FlatFace"
sketch24.AttachmentOffset = App.Placement(App.Vector(0, 0, 35), App.Rotation())
add_polygon(sketch24, [(149.448385, 117.360415), (149.448385, 147.360415), (129.448385, 147.360415), (129.448385, 117.360415)])  # lines 0-3
sketch24.addConstraint([
    Sketcher.Constraint("Vertical", 0),
    Sketcher.Constraint("Horizontal", 1),
    Sketcher.Constraint("Vertical", 2),
    Sketcher.Constraint("Horizontal", 3),
    Sketcher.Constraint("DistanceX", 1, 2, 1, 1, 20.0),
    Sketcher.Constraint("DistanceY", 0, 1, 0, 2, 30.0),
    Sketcher.Constraint("DistanceX", -1, 1, 0, 2, 149.448385),
    Sketcher.Constraint("DistanceY", -1, 1, 0, 2, 147.360415),
])
pocket9 = body.newObject("PartDesign::Pocket", "Pocket008")
pocket9.Profile = sketch24
pocket9.Length = 15

# Sketch on YZ plane
sketch25 = body.newObject("Sketcher::SketchObject", "Sketch024")
sketch25.AttachmentSupport = (doc.getObject("YZ_Plane"), [""])
sketch25.MapMode = "FlatFace"
sketch25.AttachmentOffset = App.Placement(App.Vector(0, 0, 121.448385), App.Rotation())
add_polygon(sketch25, [(-7.5, 189.360415), (-7.5, 159.360415), (5, 159.360415), (5, 189.360415), (20, 189.360415), (20, 226.860415), (-35, 226.860415), (-35, 189.360415)])  # lines 0-7
sketch25.addGeometry(Part.Circle(App.Vector(15, 219.860415, 0), App.Vector(0, 0, 1), 1.6), False)  # 8
sketch25.addGeometry(Part.Circle(App.Vector(15, 196.360415, 0), App.Vector(0, 0, 1), 1.6), False)  # 9
sketch25.addConstraint([
    Sketcher.Constraint("Vertical", 0),
    Sketcher.Constraint("Horizontal", 1),
    Sketcher.Constraint("Vertical", 2),
    Sketcher.Constraint("Horizontal", 3),
    Sketcher.Constraint("Vertical", 4),
    Sketcher.Constraint("Horizontal", 5),
    Sketcher.Constraint("Vertical", 6),
    Sketcher.Constraint("Horizontal", 7),
    Sketcher.Constraint("Equal", 8, 9),
    Sketcher.Constraint("Horizontal", 3, 2, 6, 2),
    Sketcher.Constraint("Vertical", 8, 3, 9, 3),
    Sketcher.Constraint("Diameter", 8, 3.2),
    Sketcher.Constraint("DistanceX", 3, 1, 3, 2, 15.0),
    Sketcher.Constraint("DistanceX", 5, 2, 5, 1, 55.0),
    Sketcher.Constraint("DistanceY", 0, 2, 0, 1, 30.0),
    Sketcher.Constraint("DistanceX", 1, 1, 1, 2, 12.5),
    Sketcher.Constraint("DistanceY", 4, 1, 4, 2, 37.5),
    Sketcher.Constraint("DistanceX", -1, 1, 8, 3, 15.0),
    Sketcher.Constraint("DistanceX", -1, 1, 1, 2, 5.0),
    Sketcher.Constraint("DistanceY", 0, 2, 9, 3, 37.0),
    Sketcher.Constraint("DistanceY", 8, 3, 4, 2, 7.0),
    Sketcher.Constraint("DistanceY", -1, 1, 8, 3, 219.860415),
])
pad16 = body.newObject("PartDesign::Pad", "Pad015")
pad16.Profile = sketch25
pad16.Length = 2

# Sketch on YZ plane
sketch26 = body.newObject("Sketcher::SketchObject", "Sketch025")
sketch26.AttachmentSupport = (doc.getObject("YZ_Plane"), [""])
sketch26.MapMode = "FlatFace"
sketch26.AttachmentOffset = App.Placement(App.Vector(0, 0, 121.448385), App.Rotation())
add_polygon(sketch26, [(-7.5, 189.360415), (-35, 189.360415), (-35, 226.860415), (-7.5, 226.860415)])  # lines 0-3
sketch26.addConstraint([
    Sketcher.Constraint("Horizontal", 0),
    Sketcher.Constraint("Vertical", 1),
    Sketcher.Constraint("Horizontal", 2),
    Sketcher.Constraint("Vertical", 3),
    Sketcher.Constraint("DistanceX", 0, 2, 0, 1, 27.5),
    Sketcher.Constraint("DistanceY", 1, 1, 1, 2, 37.5),
    Sketcher.Constraint("DistanceX", 0, 2, -1, 1, 35.0),
    Sketcher.Constraint("DistanceY", -1, 1, 0, 2, 189.360415),
])
pad17 = body.newObject("PartDesign::Pad", "Pad016")
pad17.Profile = sketch26
pad17.Length = 2
pad17.Reversed = True

# Sketch on XZ plane
sketch27 = body.newObject("Sketcher::SketchObject", "Sketch026")
sketch27.AttachmentSupport = (doc.getObject("XZ_Plane"), [""])
sketch27.MapMode = "FlatFace"
sketch27.AttachmentOffset = App.Placement(App.Vector(0, 0, -5), App.Rotation())
add_polygon(sketch27, [(121.198385, 107.110415), (121.198385, 157.610415), (157.698385, 157.610415), (157.698385, 107.110415)])  # lines 0-3
sketch27.addConstraint([
    Sketcher.Constraint("Vertical", 0),
    Sketcher.Constraint("Horizontal", 1),
    Sketcher.Constraint("Vertical", 2),
    Sketcher.Constraint("Horizontal", 3),
    Sketcher.Constraint("DistanceX", 1, 1, 1, 2, 36.5),
    Sketcher.Constraint("DistanceY", 0, 1, 0, 2, 50.5),
    Sketcher.Constraint("DistanceX", -1, 1, 0, 2, 121.198385),
    Sketcher.Constraint("DistanceY", -1, 1, 0, 2, 157.610415),
])
pocket10 = body.newObject("PartDesign::Pocket", "Pocket009")
pocket10.Profile = sketch27
pocket10.Length = 38
pocket10.Reversed = True

# Sketch on YZ plane
sketch28 = body.newObject("Sketcher::SketchObject", "Sketch027")
sketch28.AttachmentSupport = (doc.getObject("YZ_Plane"), [""])
sketch28.MapMode = "FlatFace"
sketch28.AttachmentOffset = App.Placement(App.Vector(0, 0, 123.448385), App.Rotation())
add_polygon(sketch28, [(20, 214.860415), (-35, 214.860415), (-35, 181.360415), (20, 181.360415)])  # lines 0-3
sketch28.addGeometry(Part.Circle(App.Vector(15, 209.860415, 0), App.Vector(0, 0, 1), 1.6), False)  # 4
sketch28.addGeometry(Part.Circle(App.Vector(15, 186.360415, 0), App.Vector(0, 0, 1), 1.6), False)  # 5
sketch28.addConstraint([
    Sketcher.Constraint("Horizontal", 0),
    Sketcher.Constraint("Vertical", 1),
    Sketcher.Constraint("Horizontal", 2),
    Sketcher.Constraint("Vertical", 3),
    Sketcher.Constraint("Equal", 4, 5),
    Sketcher.Constraint("Vertical", 4, 3, 5, 3),
    Sketcher.Constraint("Diameter", 4, 3.2),
    Sketcher.Constraint("DistanceX", 0, 2, 0, 1, 55.0),
    Sketcher.Constraint("DistanceY", 1, 2, 1, 1, 33.5),
    Sketcher.Constraint("DistanceX", -1, 1, 4, 3, 15.0),
    Sketcher.Constraint("DistanceX", 0, 2, -1, 1, 35.0),
    Sketcher.Constraint("DistanceY", 4, 3, 0, 2, 5.0),
    Sketcher.Constraint("DistanceY", 1, 2, 5, 3, 5.0),
    Sketcher.Constraint("DistanceY", -1, 1, 4, 3, 209.860415),
])
pad18 = body.newObject("PartDesign::Pad", "Pad017")
pad18.Profile = sketch28
pad18.Length = 4
pad18.Reversed = True

# Sketch on YZ plane
sketch29 = body.newObject("Sketcher::SketchObject", "Sketch028")
sketch29.AttachmentSupport = (doc.getObject("YZ_Plane"), [""])
sketch29.MapMode = "FlatFace"
sketch29.AttachmentOffset = App.Placement(App.Vector(0, 0, 123.448385), App.Rotation())
add_polygon(sketch29, [(20, 226.860415), (-35, 226.860415), (-35, 214.860415), (20, 214.860415)])  # lines 0-3
sketch29.addConstraint([
    Sketcher.Constraint("Horizontal", 0),
    Sketcher.Constraint("Vertical", 1),
    Sketcher.Constraint("Horizontal", 2),
    Sketcher.Constraint("Vertical", 3),
    Sketcher.Constraint("DistanceX", 0, 2, 0, 1, 55.0),
    Sketcher.Constraint("DistanceY", 1, 2, 1, 1, 12.0),
    Sketcher.Constraint("DistanceX", 0, 2, -1, 1, 35.0),
    Sketcher.Constraint("DistanceY", -1, 1, 0, 2, 226.860415),
])
pocket11 = body.newObject("PartDesign::Pocket", "Pocket010")
pocket11.Profile = sketch29
pocket11.Length = 4

# Sketch on YZ plane
sketch30 = body.newObject("Sketcher::SketchObject", "Sketch029")
sketch30.AttachmentSupport = (doc.getObject("YZ_Plane"), [""])
sketch30.MapMode = "FlatFace"
sketch30.AttachmentOffset = App.Placement(App.Vector(0, 0, 123.448385), App.Rotation())
sketch30.addGeometry(Part.Circle(App.Vector(15, 209.860415, 0), App.Vector(0, 0, 1), 1.6), False)
sketch30.addConstraint([
    Sketcher.Constraint("Diameter", 0, 3.2),
    Sketcher.Constraint("DistanceX", -1, 1, 0, 3, 15.0),
    Sketcher.Constraint("DistanceY", -1, 1, 0, 3, 209.860415),
])
pocket12 = body.newObject("PartDesign::Pocket", "Pocket011")
pocket12.Profile = sketch30
pocket12.Length = 4

# Sketch on YZ plane
sketch31 = body.newObject("Sketcher::SketchObject", "Sketch030")
sketch31.AttachmentSupport = (doc.getObject("YZ_Plane"), [""])
sketch31.MapMode = "FlatFace"
sketch31.AttachmentOffset = App.Placement(App.Vector(0, 0, 123.448385), App.Rotation())
add_polygon(sketch31, [(5, 181.360415), (-15, 181.360415), (-15, 159.360415), (5, 159.360415)])  # lines 0-3
sketch31.addConstraint([
    Sketcher.Constraint("Horizontal", 0),
    Sketcher.Constraint("Vertical", 1),
    Sketcher.Constraint("Horizontal", 2),
    Sketcher.Constraint("Vertical", 3),
    Sketcher.Constraint("DistanceX", 0, 2, 0, 1, 20.0),
    Sketcher.Constraint("DistanceY", 1, 2, 1, 1, 22.0),
    Sketcher.Constraint("DistanceX", 0, 2, -1, 1, 15.0),
    Sketcher.Constraint("DistanceY", -1, 1, 0, 2, 181.360415),
])
pad19 = body.newObject("PartDesign::Pad", "Pad018")
pad19.Profile = sketch31
pad19.Length = 4
pad19.Reversed = True

doc.recompute()
